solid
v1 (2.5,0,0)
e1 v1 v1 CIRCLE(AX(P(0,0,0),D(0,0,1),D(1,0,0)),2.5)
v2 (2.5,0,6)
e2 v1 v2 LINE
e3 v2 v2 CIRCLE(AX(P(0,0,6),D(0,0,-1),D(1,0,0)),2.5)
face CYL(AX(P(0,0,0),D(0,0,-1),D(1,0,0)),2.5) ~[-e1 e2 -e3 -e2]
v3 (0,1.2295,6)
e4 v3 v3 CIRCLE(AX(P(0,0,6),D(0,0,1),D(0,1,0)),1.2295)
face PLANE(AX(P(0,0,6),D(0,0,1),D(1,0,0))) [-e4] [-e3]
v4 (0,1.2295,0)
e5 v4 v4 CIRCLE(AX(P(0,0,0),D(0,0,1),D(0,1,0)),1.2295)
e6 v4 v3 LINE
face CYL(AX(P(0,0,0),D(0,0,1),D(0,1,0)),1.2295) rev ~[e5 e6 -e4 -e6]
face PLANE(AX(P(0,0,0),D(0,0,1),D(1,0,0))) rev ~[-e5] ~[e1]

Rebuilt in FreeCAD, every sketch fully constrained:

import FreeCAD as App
import Part
import Sketcher

V = App.Vector

doc = App.newDocument("Part")
body = doc.addObject("PartDesign::Body", "Body")

# Sketch on XY plane
sketch1 = body.newObject("Sketcher::SketchObject", "Sketch")
sketch1.AttachmentSupport = (doc.getObject("XY_Plane"), [""])
sketch1.MapMode = "FlatFace"
sketch1.addGeometry(Part.Circle(V(0, 0, 0), V(0, 0, 1), 2.5), False)
sketch1.addConstraint([
    Sketcher.Constraint("Coincident", 0, 3, -1, 1),
    Sketcher.Constraint("Diameter", 0, 5.0),
])
pad1 = body.newObject("PartDesign::Pad", "Pad")
pad1.Profile = sketch1
pad1.Length = 6

# Sketch on XY plane
sketch2 = body.newObject("Sketcher::SketchObject", "Sketch001")
sketch2.AttachmentSupport = (doc.getObject("XY_Plane"), [""])
sketch2.MapMode = "FlatFace"
sketch2.addGeometry(Part.Circle(V(0, 0, 0), V(0, 0, 1), 1.2), False)
sketch2.addConstraint([
    Sketcher.Constraint("Coincident", 0, 3, -1, 1),
    Sketcher.Constraint("Diameter", 0, 2.459),
])
doc.recompute()
hole = body.newObject("PartDesign::Hole", "Hole")
hole.Profile = sketch2
hole.ThreadType = "None"
hole.Diameter = 2.459
hole.DepthType = "ThroughAll"
hole.Reversed = True

doc.recompute()
